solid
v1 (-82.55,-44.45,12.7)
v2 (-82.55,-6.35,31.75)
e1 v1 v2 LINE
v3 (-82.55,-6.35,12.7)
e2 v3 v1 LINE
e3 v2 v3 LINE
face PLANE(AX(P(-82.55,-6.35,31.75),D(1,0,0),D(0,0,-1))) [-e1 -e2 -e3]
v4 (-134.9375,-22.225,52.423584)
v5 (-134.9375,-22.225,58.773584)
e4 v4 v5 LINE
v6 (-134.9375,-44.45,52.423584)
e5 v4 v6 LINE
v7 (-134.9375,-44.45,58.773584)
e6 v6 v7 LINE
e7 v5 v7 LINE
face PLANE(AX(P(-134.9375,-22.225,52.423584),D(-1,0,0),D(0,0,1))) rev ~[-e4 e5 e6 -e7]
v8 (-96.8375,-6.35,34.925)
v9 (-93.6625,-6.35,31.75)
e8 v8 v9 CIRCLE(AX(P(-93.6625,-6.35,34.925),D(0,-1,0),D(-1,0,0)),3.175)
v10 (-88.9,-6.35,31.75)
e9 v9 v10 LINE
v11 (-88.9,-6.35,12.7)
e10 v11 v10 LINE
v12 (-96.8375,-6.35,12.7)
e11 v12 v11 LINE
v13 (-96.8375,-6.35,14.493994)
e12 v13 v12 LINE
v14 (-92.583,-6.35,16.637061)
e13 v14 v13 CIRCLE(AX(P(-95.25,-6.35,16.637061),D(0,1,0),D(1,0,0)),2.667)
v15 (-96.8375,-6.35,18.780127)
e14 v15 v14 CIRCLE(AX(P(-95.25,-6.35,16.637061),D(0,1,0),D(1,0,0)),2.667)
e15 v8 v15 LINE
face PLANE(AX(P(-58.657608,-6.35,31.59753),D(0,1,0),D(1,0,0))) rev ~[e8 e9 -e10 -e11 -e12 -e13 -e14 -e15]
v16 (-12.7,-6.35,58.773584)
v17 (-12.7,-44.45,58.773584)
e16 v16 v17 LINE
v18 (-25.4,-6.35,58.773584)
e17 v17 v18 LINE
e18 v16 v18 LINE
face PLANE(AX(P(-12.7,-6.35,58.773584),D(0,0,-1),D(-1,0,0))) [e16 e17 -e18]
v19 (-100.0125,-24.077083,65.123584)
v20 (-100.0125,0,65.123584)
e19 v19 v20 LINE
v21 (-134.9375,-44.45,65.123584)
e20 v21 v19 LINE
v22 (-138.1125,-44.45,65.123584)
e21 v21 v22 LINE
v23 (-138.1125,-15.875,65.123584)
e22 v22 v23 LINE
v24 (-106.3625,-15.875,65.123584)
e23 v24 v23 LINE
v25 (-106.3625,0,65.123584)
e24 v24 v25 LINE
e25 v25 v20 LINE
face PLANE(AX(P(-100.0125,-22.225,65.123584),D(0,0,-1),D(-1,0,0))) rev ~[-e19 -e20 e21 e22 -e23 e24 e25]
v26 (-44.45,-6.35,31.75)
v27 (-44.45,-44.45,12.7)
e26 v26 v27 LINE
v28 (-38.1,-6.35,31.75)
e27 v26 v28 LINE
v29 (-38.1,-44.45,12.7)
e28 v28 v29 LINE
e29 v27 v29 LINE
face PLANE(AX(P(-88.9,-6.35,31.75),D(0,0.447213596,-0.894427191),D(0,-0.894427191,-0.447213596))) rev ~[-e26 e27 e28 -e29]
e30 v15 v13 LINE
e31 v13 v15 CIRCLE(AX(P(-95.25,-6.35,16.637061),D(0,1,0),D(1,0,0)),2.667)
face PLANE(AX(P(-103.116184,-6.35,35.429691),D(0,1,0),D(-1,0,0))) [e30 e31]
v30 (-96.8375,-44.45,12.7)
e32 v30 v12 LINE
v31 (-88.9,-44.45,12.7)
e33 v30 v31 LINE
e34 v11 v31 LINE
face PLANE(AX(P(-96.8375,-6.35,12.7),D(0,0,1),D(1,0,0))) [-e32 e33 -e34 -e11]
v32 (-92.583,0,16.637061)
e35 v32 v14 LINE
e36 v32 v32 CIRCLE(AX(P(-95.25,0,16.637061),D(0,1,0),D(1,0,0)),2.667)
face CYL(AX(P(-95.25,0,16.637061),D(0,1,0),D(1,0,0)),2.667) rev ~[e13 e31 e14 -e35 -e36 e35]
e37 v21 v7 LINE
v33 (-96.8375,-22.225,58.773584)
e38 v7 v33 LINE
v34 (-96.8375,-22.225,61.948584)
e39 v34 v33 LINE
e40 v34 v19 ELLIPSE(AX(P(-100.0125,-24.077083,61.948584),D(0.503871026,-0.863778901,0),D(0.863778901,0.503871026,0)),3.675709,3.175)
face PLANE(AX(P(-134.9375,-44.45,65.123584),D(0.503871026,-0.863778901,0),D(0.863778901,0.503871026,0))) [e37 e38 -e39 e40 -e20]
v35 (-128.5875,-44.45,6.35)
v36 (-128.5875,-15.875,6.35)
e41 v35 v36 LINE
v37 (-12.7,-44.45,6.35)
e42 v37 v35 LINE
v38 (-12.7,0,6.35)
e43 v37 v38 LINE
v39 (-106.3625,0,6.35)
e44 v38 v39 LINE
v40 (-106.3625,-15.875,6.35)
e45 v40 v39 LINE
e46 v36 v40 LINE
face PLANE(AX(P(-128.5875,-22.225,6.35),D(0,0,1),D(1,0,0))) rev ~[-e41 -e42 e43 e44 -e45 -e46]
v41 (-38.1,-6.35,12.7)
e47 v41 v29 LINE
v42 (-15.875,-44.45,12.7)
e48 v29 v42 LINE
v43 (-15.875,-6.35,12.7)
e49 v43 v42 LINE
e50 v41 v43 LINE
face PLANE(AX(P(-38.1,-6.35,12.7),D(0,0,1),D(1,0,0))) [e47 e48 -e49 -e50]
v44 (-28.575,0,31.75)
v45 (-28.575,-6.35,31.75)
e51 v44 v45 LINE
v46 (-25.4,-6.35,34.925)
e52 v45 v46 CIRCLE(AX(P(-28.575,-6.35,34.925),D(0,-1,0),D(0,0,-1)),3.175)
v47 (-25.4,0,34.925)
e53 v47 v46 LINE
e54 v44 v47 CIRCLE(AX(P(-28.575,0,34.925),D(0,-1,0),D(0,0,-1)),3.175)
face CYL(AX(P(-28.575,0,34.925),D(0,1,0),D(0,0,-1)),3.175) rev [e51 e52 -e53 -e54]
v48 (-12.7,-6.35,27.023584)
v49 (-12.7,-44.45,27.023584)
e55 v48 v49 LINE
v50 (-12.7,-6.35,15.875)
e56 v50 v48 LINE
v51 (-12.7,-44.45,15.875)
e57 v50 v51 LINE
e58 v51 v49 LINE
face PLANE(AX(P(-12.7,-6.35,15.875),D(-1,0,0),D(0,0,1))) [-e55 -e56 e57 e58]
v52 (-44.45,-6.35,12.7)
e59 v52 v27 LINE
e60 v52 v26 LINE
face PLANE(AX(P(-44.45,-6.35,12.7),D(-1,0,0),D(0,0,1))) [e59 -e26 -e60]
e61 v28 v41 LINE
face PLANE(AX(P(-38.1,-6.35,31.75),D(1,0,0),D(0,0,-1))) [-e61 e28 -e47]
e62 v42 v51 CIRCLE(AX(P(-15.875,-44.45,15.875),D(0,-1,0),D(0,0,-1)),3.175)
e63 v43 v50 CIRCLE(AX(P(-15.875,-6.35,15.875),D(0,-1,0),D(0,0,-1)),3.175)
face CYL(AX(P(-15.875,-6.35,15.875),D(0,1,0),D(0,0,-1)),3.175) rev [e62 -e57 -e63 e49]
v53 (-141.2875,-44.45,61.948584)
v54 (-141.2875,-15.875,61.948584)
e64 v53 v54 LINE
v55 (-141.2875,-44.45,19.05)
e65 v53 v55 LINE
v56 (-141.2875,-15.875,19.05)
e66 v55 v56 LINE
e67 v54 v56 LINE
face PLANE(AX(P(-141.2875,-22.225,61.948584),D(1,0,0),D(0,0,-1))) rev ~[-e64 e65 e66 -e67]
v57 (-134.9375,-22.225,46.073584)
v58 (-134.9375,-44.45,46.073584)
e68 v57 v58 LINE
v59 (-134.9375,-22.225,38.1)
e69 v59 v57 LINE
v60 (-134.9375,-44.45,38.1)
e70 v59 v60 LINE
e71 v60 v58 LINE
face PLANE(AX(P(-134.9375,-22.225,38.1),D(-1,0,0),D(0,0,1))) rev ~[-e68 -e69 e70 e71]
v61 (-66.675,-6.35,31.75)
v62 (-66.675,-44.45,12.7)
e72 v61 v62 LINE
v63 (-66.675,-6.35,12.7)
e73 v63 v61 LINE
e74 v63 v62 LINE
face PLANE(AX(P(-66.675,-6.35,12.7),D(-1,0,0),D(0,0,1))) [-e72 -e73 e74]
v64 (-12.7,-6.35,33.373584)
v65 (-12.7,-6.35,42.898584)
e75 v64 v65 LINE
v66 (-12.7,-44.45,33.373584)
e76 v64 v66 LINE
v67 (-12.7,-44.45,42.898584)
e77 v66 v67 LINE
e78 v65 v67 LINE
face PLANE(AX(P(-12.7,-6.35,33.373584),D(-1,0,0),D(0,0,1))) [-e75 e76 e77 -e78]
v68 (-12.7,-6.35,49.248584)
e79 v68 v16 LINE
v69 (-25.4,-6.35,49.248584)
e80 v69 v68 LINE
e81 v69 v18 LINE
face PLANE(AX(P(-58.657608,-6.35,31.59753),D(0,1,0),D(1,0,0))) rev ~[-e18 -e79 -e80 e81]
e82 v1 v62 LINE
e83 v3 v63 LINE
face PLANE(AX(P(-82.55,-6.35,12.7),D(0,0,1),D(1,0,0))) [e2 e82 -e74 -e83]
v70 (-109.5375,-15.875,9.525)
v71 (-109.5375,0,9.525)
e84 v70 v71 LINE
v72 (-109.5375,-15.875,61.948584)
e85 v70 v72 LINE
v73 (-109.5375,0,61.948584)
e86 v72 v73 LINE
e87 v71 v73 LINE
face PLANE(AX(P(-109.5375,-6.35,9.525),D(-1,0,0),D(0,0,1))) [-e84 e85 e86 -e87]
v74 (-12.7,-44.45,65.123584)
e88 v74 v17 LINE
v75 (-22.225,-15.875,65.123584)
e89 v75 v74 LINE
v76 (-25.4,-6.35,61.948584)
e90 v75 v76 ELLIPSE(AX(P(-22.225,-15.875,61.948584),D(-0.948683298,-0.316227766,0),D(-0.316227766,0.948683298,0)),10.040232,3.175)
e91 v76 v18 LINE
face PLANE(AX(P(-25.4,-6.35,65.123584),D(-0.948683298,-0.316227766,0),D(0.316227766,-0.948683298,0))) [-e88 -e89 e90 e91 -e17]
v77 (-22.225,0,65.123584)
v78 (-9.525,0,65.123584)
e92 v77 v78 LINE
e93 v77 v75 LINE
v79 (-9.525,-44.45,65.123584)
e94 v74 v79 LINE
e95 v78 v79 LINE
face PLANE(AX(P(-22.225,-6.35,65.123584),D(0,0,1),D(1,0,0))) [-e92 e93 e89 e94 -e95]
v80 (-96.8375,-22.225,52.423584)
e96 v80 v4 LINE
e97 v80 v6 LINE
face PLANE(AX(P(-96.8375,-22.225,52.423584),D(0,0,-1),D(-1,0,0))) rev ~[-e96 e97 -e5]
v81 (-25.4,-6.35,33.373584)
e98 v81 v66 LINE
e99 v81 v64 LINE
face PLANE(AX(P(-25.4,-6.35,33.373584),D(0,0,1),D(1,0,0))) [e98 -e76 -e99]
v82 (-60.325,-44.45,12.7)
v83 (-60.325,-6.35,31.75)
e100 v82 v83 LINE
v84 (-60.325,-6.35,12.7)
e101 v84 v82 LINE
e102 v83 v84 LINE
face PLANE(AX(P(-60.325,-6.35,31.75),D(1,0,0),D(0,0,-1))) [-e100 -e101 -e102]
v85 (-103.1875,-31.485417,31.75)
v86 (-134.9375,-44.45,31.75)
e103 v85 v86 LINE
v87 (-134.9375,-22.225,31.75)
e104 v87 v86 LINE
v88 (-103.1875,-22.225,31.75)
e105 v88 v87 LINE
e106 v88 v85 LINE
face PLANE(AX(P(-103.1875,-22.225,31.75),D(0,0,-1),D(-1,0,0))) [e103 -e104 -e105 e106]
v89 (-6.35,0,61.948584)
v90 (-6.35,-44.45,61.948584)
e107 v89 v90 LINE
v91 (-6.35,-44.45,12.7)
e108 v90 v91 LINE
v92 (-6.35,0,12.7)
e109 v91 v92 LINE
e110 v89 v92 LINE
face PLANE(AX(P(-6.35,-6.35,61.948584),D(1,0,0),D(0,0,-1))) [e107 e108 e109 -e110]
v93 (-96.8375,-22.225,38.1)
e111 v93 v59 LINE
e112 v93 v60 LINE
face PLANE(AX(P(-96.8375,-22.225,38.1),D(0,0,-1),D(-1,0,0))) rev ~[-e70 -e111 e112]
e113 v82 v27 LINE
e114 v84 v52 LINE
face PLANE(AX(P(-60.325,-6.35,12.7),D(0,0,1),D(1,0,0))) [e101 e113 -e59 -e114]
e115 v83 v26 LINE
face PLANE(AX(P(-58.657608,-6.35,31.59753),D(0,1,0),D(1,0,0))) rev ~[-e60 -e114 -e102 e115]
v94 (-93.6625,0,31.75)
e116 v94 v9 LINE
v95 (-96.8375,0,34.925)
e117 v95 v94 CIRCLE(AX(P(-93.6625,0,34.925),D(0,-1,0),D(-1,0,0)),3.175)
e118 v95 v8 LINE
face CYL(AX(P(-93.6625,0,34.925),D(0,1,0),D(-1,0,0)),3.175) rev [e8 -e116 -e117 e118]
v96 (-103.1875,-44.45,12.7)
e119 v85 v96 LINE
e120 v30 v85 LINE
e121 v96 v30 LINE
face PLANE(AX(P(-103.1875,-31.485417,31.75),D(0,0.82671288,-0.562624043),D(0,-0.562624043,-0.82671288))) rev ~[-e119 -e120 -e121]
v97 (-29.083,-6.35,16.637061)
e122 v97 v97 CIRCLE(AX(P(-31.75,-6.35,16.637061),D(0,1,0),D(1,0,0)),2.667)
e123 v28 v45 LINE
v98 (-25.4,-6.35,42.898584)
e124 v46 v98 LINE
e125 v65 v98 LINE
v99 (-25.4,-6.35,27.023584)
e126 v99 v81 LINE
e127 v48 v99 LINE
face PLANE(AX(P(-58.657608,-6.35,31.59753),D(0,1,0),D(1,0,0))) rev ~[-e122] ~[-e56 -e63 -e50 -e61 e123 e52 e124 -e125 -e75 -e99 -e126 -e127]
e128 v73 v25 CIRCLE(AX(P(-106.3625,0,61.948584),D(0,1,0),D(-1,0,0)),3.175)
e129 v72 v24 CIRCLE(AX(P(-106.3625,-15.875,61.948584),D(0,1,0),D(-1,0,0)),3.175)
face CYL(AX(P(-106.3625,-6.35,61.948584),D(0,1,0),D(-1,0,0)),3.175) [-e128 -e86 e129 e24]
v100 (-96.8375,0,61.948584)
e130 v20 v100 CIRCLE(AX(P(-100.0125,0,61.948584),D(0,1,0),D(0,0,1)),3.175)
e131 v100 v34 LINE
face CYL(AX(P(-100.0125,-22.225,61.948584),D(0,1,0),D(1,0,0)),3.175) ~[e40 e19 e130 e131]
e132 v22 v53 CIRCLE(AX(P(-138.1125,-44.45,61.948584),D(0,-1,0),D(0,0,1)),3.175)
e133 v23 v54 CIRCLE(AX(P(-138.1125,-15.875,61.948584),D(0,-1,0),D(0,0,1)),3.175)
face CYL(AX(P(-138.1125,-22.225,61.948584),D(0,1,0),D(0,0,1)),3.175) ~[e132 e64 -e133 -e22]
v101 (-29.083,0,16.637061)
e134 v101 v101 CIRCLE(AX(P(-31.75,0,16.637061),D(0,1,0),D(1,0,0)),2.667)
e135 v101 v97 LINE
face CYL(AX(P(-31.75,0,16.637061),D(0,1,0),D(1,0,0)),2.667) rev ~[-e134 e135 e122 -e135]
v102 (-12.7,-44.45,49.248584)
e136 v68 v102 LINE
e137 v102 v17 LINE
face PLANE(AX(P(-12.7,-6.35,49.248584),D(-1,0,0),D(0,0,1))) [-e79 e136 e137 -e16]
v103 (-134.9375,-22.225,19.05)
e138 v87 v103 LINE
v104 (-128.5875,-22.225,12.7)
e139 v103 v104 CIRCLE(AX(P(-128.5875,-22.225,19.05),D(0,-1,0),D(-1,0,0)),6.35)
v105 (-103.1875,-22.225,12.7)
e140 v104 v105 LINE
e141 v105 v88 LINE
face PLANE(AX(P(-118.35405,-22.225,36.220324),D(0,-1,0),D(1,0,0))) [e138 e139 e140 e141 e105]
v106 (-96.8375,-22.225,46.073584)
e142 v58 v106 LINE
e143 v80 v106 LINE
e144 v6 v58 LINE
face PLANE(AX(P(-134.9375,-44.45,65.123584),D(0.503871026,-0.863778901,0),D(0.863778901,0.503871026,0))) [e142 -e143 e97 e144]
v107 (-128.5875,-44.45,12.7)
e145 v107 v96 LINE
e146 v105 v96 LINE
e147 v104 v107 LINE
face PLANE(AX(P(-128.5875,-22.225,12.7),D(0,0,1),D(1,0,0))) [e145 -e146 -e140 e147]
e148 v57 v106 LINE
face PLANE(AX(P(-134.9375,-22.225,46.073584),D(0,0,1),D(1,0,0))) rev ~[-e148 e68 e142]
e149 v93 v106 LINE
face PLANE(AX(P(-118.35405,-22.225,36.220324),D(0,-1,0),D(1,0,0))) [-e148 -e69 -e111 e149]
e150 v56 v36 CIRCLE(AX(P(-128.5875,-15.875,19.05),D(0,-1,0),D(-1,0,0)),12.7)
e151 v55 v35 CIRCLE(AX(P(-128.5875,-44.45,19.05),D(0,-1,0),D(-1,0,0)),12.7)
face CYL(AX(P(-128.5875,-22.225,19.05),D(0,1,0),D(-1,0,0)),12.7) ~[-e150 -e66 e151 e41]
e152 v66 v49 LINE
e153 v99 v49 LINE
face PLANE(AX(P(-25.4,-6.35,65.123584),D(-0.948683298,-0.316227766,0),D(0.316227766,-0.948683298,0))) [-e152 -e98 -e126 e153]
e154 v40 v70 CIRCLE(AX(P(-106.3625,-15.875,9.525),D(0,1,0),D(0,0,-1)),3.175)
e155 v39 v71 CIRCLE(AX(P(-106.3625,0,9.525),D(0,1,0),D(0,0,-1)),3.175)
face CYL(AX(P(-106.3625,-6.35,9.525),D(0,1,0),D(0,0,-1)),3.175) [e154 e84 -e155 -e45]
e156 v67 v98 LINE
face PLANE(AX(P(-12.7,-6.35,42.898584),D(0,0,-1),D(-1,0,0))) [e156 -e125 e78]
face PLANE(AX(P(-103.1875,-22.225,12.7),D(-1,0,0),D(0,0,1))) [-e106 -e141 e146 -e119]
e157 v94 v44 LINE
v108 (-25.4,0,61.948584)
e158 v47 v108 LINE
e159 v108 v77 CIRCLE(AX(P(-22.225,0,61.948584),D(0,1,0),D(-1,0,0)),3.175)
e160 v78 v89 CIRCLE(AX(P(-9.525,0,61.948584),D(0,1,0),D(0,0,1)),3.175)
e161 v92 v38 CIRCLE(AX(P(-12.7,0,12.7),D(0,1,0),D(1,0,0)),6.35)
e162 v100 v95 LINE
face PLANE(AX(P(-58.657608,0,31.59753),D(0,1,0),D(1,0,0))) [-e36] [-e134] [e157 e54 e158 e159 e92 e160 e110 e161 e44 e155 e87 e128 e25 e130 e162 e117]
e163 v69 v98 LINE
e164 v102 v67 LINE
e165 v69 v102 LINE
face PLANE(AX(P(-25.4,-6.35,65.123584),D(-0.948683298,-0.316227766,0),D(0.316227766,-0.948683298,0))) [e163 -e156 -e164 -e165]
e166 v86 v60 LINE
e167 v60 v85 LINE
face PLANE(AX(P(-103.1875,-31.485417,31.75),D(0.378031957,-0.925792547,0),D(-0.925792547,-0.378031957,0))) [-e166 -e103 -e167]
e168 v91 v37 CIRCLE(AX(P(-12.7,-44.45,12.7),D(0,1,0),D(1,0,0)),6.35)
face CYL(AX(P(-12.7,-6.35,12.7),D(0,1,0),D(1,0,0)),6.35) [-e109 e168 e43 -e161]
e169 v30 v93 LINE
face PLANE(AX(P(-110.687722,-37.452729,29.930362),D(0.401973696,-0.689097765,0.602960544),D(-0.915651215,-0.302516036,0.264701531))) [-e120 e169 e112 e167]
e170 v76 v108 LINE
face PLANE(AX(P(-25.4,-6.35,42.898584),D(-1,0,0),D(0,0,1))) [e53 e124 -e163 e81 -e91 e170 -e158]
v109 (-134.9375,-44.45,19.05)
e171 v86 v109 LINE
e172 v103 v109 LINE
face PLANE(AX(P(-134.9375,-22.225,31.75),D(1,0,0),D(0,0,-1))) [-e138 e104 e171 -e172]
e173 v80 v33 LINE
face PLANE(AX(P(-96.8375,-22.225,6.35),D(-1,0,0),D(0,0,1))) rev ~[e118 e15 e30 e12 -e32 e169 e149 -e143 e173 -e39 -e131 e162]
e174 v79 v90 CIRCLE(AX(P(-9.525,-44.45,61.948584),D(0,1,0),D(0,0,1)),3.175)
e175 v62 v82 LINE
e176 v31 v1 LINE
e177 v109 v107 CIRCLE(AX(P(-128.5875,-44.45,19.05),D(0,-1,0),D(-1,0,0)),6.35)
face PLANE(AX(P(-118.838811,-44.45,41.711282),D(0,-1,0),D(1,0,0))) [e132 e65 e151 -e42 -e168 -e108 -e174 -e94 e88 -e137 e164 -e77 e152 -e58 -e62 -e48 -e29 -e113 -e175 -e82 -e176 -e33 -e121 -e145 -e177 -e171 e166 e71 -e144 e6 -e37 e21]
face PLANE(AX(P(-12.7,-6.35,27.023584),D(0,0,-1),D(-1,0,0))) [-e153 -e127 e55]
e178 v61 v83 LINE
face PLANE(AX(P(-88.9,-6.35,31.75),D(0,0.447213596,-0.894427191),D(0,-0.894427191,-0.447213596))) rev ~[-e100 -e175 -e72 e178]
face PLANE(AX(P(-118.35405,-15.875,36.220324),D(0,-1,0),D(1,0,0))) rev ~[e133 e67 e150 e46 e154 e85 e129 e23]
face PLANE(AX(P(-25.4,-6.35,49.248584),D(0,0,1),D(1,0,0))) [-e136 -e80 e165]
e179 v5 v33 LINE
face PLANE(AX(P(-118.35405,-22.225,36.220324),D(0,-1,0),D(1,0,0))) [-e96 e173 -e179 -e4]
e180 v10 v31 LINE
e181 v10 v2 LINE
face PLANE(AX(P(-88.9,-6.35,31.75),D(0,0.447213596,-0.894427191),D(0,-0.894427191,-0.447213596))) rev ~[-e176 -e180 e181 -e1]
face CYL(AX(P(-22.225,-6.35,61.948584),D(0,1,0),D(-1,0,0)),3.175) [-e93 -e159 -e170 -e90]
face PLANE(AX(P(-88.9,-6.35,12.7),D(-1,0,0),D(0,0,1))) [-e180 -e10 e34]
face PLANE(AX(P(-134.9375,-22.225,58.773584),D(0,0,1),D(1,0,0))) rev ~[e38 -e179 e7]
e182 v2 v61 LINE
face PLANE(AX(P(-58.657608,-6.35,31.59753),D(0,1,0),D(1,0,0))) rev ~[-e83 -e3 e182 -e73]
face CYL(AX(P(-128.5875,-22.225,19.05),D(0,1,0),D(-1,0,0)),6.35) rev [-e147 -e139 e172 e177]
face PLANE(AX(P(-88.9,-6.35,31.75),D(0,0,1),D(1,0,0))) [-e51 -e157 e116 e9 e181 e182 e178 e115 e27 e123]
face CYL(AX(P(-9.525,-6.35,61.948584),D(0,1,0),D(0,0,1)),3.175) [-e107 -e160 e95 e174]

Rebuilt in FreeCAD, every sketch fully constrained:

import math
import FreeCAD as App
import Part
import Sketcher

V = App.Vector
Q = App.Units.Quantity

doc = App.newDocument("Part")
params = doc.addObject("Spreadsheet::Sheet", "Params")
for row, (alias, value) in enumerate([
    ("sketch1_diameter", "0.21 in"),
    ("sketch1_radius", "0.25 in"),
    ("sketch1_width", "0.5 in"),
    ("sketch1_radius2", "0.125 in"),
    ("sketch1_width2", "0.25 in"),
    ("pad1_length", "0.25 in"),
    ("sketch2_radius", "0.25 in"),
    ("sketch2_width", "0.5 in"),
    ("sketch2_width2", "0.3125 in"),
    ("sketch2_height", "0.125 in"),
    ("pad2_length", "1.5 in"),
    ("sketch3_width", "1.5 in"),
    ("sketch3_height", "0.75 in"),
    ("pocket1_length", "2 in"),
    ("sketch4_width", "0.5 in"),
    ("sketch4_height", "1.5 in"),
    ("pocket2_length", "1.5 in"),
    ("sketch5_radius", "0.125 in"),
    ("sketch5_width", "0.25 in"),
    ("pad3_length", "0.375 in"),
    ("sketch6_radius", "0.5 in"),
    ("sketch6_width", "1.5 in"),
    ("sketch6_radius2", "0.125 in"),
    ("pad4_length", "0.25 in"),
    ("sketch7_radius", "0.5 in"),
    ("sketch7_width", "1 in"),
    ("sketch7_radius2", "0.25 in"),
    ("sketch7_height", "0.5 in"),
    ("sketch7_height2", "0.25 in"),
    ("pad5_length", "0.875 in"),
    ("sketch8_width", "1.5 in"),
    ("sketch8_height", "0.875 in"),
    ("pocket3_length", "0.75 in"),
    ("pocket4_length", "0.75 in"),
    ("pocket5_length", "0.25 in"),
    ("sketch11_width", "0.375 in"),
    ("pocket6_length", "0.25 in"),
], start=1):
    params.set(f"A{row}", alias)
    params.set(f"B{row}", "=" + value)
    params.setAlias(f"B{row}", alias)

body = doc.addObject("PartDesign::Body", "Body")

sketch1 = body.newObject("Sketcher::SketchObject", "Sketch")
sketch1.AttachmentSupport = (doc.getObject("XZ_Plane"), [""])
sketch1.MapMode = "FlatFace"
sketch1.addGeometry(Part.LineSegment(V(-109.5, 9.5, 0), V(-109.5, 61.9, 0)), False)
sketch1.addGeometry(Part.ArcOfCircle(Part.Circle(V(-106.4, 61.9, 0), V(0, 0, 1), 3.2), math.radians(90), math.radians(180)), False)
sketch1.addGeometry(Part.LineSegment(V(-106.4, 65.1, 0), V(-100, 65.1, 0)), False)
sketch1.addGeometry(Part.ArcOfCircle(Part.Circle(V(-100, 61.9, 0), V(0, 0, 1), 3.2), math.radians(0), math.radians(90)), False)
sketch1.addGeometry(Part.LineSegment(V(-96.8, 61.9, 0), V(-96.8, 34.9, 0)), False)
sketch1.addGeometry(Part.ArcOfCircle(Part.Circle(V(-93.7, 34.9, 0), V(0, 0, 1), 3.2), math.radians(-180), math.radians(-90)), False)
sketch1.addGeometry(Part.LineSegment(V(-93.7, 31.8, 0), V(-28.6, 31.8, 0)), False)
sketch1.addGeometry(Part.ArcOfCircle(Part.Circle(V(-28.6, 34.9, 0), V(0, 0, 1), 3.2), math.radians(-90), math.radians(0)), False)
sketch1.addGeometry(Part.LineSegment(V(-25.4, 34.9, 0), V(-25.4, 61.9, 0)), False)
sketch1.addGeometry(Part.ArcOfCircle(Part.Circle(V(-22.2, 61.9, 0), V(0, 0, 1), 3.2), math.radians(90), math.radians(180)), False)
sketch1.addGeometry(Part.LineSegment(V(-22.2, 65.1, 0), V(-9.5, 65.1, 0)), False)
sketch1.addGeometry(Part.ArcOfCircle(Part.Circle(V(-9.5, 61.9, 0), V(0, 0, 1), 3.2), math.radians(0), math.radians(90)), False)
sketch1.addGeometry(Part.LineSegment(V(-6.3, 61.9, 0), V(-6.3, 12.7, 0)), False)
sketch1.addGeometry(Part.ArcOfCircle(Part.Circle(V(-12.7, 12.7, 0), V(0, 0, 1), 6.3), math.radians(-90), math.radians(0)), False)
sketch1.addGeometry(Part.LineSegment(V(-12.7, 6.3, 0), V(-106.4, 6.3, 0)), False)
sketch1.addGeometry(Part.ArcOfCircle(Part.Circle(V(-106.4, 9.5, 0), V(0, 0, 1), 3.2), math.radians(-180), math.radians(-90)), False)
sketch1.addGeometry(Part.Circle(V(-95.2, 16.6, 0), V(0, 0, 1), 2.7), False)
sketch1.addGeometry(Part.Circle(V(-31.8, 16.6, 0), V(0, 0, 1), 2.7), False)
sketch1.addConstraint(Sketcher.Constraint("Tangent", 0, 2, 1, 2))
sketch1.addConstraint(Sketcher.Constraint("Tangent", 1, 1, 2, 1))
sketch1.addConstraint(Sketcher.Constraint("Tangent", 2, 2, 3, 2))
sketch1.addConstraint(Sketcher.Constraint("Tangent", 3, 1, 4, 1))
sketch1.addConstraint(Sketcher.Constraint("Tangent", 4, 2, 5, 1))
sketch1.addConstraint(Sketcher.Constraint("Tangent", 5, 2, 6, 1))
sketch1.addConstraint(Sketcher.Constraint("Tangent", 6, 2, 7, 1))
sketch1.addConstraint(Sketcher.Constraint("Tangent", 7, 2, 8, 1))
sketch1.addConstraint(Sketcher.Constraint("Tangent", 8, 2, 9, 2))
sketch1.addConstraint(Sketcher.Constraint("Tangent", 9, 1, 10, 1))
sketch1.addConstraint(Sketcher.Constraint("Tangent", 10, 2, 11, 2))
sketch1.addConstraint(Sketcher.Constraint("Tangent", 11, 1, 12, 1))
sketch1.addConstraint(Sketcher.Constraint("Tangent", 12, 2, 13, 2))
sketch1.addConstraint(Sketcher.Constraint("Tangent", 13, 1, 14, 1))
sketch1.addConstraint(Sketcher.Constraint("Tangent", 14, 2, 15, 2))
sketch1.addConstraint(Sketcher.Constraint("Tangent", 15, 1, 0, 1))
sketch1.addConstraint(Sketcher.Constraint("Vertical", 0))
sketch1.addConstraint(Sketcher.Constraint("Horizontal", 2))
sketch1.addConstraint(Sketcher.Constraint("Vertical", 4))
sketch1.addConstraint(Sketcher.Constraint("Horizontal", 6))
sketch1.addConstraint(Sketcher.Constraint("Vertical", 8))
sketch1.addConstraint(Sketcher.Constraint("Horizontal", 10))
sketch1.addConstraint(Sketcher.Constraint("Vertical", 12))
sketch1.addConstraint(Sketcher.Constraint("Horizontal", 14))
sketch1.addConstraint(Sketcher.Constraint("Equal", 1, 3))
sketch1.addConstraint(Sketcher.Constraint("Equal", 3, 5))
sketch1.addConstraint(Sketcher.Constraint("Equal", 5, 7))
sketch1.addConstraint(Sketcher.Constraint("Equal", 7, 9))
sketch1.addConstraint(Sketcher.Constraint("Equal", 9, 11))
sketch1.addConstraint(Sketcher.Constraint("Equal", 11, 15))
sketch1.addConstraint(Sketcher.Constraint("Equal", 16, 17))
sketch1.addConstraint(Sketcher.Constraint("Horizontal", 3, 3, 9, 3))
sketch1.addConstraint(Sketcher.Constraint("Horizontal", 16, 3, 17, 3))
sketch1.addConstraint(Sketcher.Constraint("Diameter", 16, Q("0.21 in")))
sketch1.addConstraint(Sketcher.Constraint("Radius", 13, Q("0.25 in")))
sketch1.addConstraint(Sketcher.Constraint("DistanceX", 10, 1, 10, 2, Q("0.5 in")))
sketch1.addConstraint(Sketcher.Constraint("DistanceX", 7, 2, -1, 1, Q("1 in")))
sketch1.addConstraint(Sketcher.Constraint("Radius", 1, Q("0.125 in")))
sketch1.addConstraint(Sketcher.Constraint("DistanceY", 15, 3, 5, 3, Q("1 in")))
sketch1.addConstraint(Sketcher.Constraint("DistanceX", 17, 3, 12, 2, Q("1 in")))
sketch1.addConstraint(Sketcher.Constraint("DistanceX", 2, 1, 2, 2, Q("0.25 in")))
sketch1.addConstraint(Sketcher.Constraint("DistanceY", -1, 1, 13, 3, Q("0.5 in")))
sketch1.addConstraint(Sketcher.Constraint("DistanceX", 16, 3, 17, 3, Q("2.5 in")))
sketch1.addConstraint(Sketcher.Constraint("DistanceX", 6, 1, 6, 2, Q("2.5625 in")))
sketch1.addConstraint(Sketcher.Constraint("DistanceY", 0, 1, 0, 2, Q("52.423584 mm")))
sketch1.addConstraint(Sketcher.Constraint("DistanceY", -1, 1, 16, 3, Q("16.637061 mm")))
sketch1.setExpression("Constraints[33]", "Params.sketch1_diameter")
sketch1.setExpression("Constraints[34]", "Params.sketch1_radius")
sketch1.setExpression("Constraints[35]", "Params.sketch1_width")
sketch1.setExpression("Constraints[37]", "Params.sketch1_radius2")
sketch1.setExpression("Constraints[40]", "Params.sketch1_width2")
pad1 = body.newObject("PartDesign::Pad", "Pad")
pad1.Profile = sketch1
pad1.setExpression("Length", "Params.pad1_length")

sketch2 = body.newObject("Sketcher::SketchObject", "Sketch001")
sketch2.AttachmentSupport = (doc.getObject("XZ_Plane"), [""])
sketch2.MapMode = "FlatFace"
sketch2.AttachmentOffset = App.Placement(V(0, 0, 0.25 * 25.4), App.Rotation())
sketch2.addGeometry(Part.LineSegment(V(-6.3, 12.7, 0), V(-6.3, 61.9, 0)), False)
sketch2.addGeometry(Part.ArcOfCircle(Part.Circle(V(-9.5, 61.9, 0), V(0, 0, 1), 3.2), math.radians(0), math.radians(90)), False)
sketch2.addGeometry(Part.LineSegment(V(-9.5, 65.1, 0), V(-22.2, 65.1, 0)), False)
sketch2.addGeometry(Part.ArcOfCircle(Part.Circle(V(-22.2, 61.9, 0), V(0, 0, 1), 3.2), math.radians(90), math.radians(180)), False)
sketch2.addGeometry(Part.LineSegment(V(-25.4, 61.9, 0), V(-25.4, 58.8, 0)), False)
sketch2.addGeometry(Part.LineSegment(V(-25.4, 58.8, 0), V(-12.7, 58.8, 0)), False)
sketch2.addGeometry(Part.LineSegment(V(-12.7, 58.8, 0), V(-12.7, 49.2, 0)), False)
sketch2.addGeometry(Part.LineSegment(V(-12.7, 49.2, 0), V(-25.4, 49.2, 0)), False)
sketch2.addGeometry(Part.LineSegment(V(-25.4, 49.2, 0), V(-25.4, 42.9, 0)), False)
sketch2.addGeometry(Part.LineSegment(V(-25.4, 42.9, 0), V(-12.7, 42.9, 0)), False)
sketch2.addGeometry(Part.LineSegment(V(-12.7, 42.9, 0), V(-12.7, 33.4, 0)), False)
sketch2.addGeometry(Part.LineSegment(V(-12.7, 33.4, 0), V(-25.4, 33.4, 0)), False)
sketch2.addGeometry(Part.LineSegment(V(-25.4, 33.4, 0), V(-25.4, 27, 0)), False)
sketch2.addGeometry(Part.LineSegment(V(-25.4, 27, 0), V(-12.7, 27, 0)), False)
sketch2.addGeometry(Part.LineSegment(V(-12.7, 27, 0), V(-12.7, 15.9, 0)), False)
sketch2.addGeometry(Part.ArcOfCircle(Part.Circle(V(-15.9, 15.9, 0), V(0, 0, 1), 3.2), math.radians(-90), math.radians(0)), False)
sketch2.addGeometry(Part.LineSegment(V(-15.9, 12.7, 0), V(-38.1, 12.7, 0)), False)
sketch2.addGeometry(Part.LineSegment(V(-38.1, 12.7, 0), V(-38.1, 31.8, 0)), False)
sketch2.addGeometry(Part.LineSegment(V(-38.1, 31.8, 0), V(-44.5, 31.8, 0)), False)
sketch2.addGeometry(Part.LineSegment(V(-44.5, 31.8, 0), V(-44.5, 12.7, 0)), False)
sketch2.addGeometry(Part.LineSegment(V(-44.5, 12.7, 0), V(-60.3, 12.7, 0)), False)
sketch2.addGeometry(Part.LineSegment(V(-60.3, 12.7, 0), V(-60.3, 31.8, 0)), False)
sketch2.addGeometry(Part.LineSegment(V(-60.3, 31.8, 0), V(-66.7, 31.8, 0)), False)
sketch2.addGeometry(Part.LineSegment(V(-66.7, 31.8, 0), V(-66.7, 12.7, 0)), False)
sketch2.addGeometry(Part.LineSegment(V(-66.7, 12.7, 0), V(-82.5, 12.7, 0)), False)
sketch2.addGeometry(Part.LineSegment(V(-82.5, 12.7, 0), V(-82.5, 31.8, 0)), False)
sketch2.addGeometry(Part.LineSegment(V(-82.5, 31.8, 0), V(-88.9, 31.8, 0)), False)
sketch2.addGeometry(Part.LineSegment(V(-88.9, 31.8, 0), V(-88.9, 12.7, 0)), False)
sketch2.addGeometry(Part.LineSegment(V(-88.9, 12.7, 0), V(-96.8, 12.7, 0)), False)
sketch2.addGeometry(Part.LineSegment(V(-96.8, 12.7, 0), V(-96.8, 6.3, 0)), False)
sketch2.addGeometry(Part.LineSegment(V(-96.8, 6.3, 0), V(-12.7, 6.3, 0)), False)
sketch2.addGeometry(Part.ArcOfCircle(Part.Circle(V(-12.7, 12.7, 0), V(0, 0, 1), 6.3), math.radians(-90), math.radians(0)), False)
sketch2.addConstraint(Sketcher.Constraint("Tangent", 0, 2, 1, 1))
sketch2.addConstraint(Sketcher.Constraint("Tangent", 1, 2, 2, 1))
sketch2.addConstraint(Sketcher.Constraint("Tangent", 2, 2, 3, 1))
sketch2.addConstraint(Sketcher.Constraint("Tangent", 3, 2, 4, 1))
sketch2.addConstraint(Sketcher.Constraint("Coincident", 4, 2, 5, 1))
sketch2.addConstraint(Sketcher.Constraint("Coincident", 5, 2, 6, 1))
sketch2.addConstraint(Sketcher.Constraint("Coincident", 6, 2, 7, 1))
sketch2.addConstraint(Sketcher.Constraint("Coincident", 7, 2, 8, 1))
sketch2.addConstraint(Sketcher.Constraint("Coincident", 8, 2, 9, 1))
sketch2.addConstraint(Sketcher.Constraint("Coincident", 9, 2, 10, 1))
sketch2.addConstraint(Sketcher.Constraint("Coincident", 10, 2, 11, 1))
sketch2.addConstraint(Sketcher.Constraint("Coincident", 11, 2, 12, 1))
sketch2.addConstraint(Sketcher.Constraint("Coincident", 12, 2, 13, 1))
sketch2.addConstraint(Sketcher.Constraint("Coincident", 13, 2, 14, 1))
sketch2.addConstraint(Sketcher.Constraint("Tangent", 14, 2, 15, 2))
sketch2.addConstraint(Sketcher.Constraint("Tangent", 15, 1, 16, 1))
sketch2.addConstraint(Sketcher.Constraint("Coincident", 16, 2, 17, 1))
sketch2.addConstraint(Sketcher.Constraint("Coincident", 17, 2, 18, 1))
sketch2.addConstraint(Sketcher.Constraint("Coincident", 18, 2, 19, 1))
sketch2.addConstraint(Sketcher.Constraint("Coincident", 19, 2, 20, 1))
sketch2.addConstraint(Sketcher.Constraint("Coincident", 20, 2, 21, 1))
sketch2.addConstraint(Sketcher.Constraint("Coincident", 21, 2, 22, 1))
sketch2.addConstraint(Sketcher.Constraint("Coincident", 22, 2, 23, 1))
sketch2.addConstraint(Sketcher.Constraint("Coincident", 23, 2, 24, 1))
sketch2.addConstraint(Sketcher.Constraint("Coincident", 24, 2, 25, 1))
sketch2.addConstraint(Sketcher.Constraint("Coincident", 25, 2, 26, 1))
sketch2.addConstraint(Sketcher.Constraint("Coincident", 26, 2, 27, 1))
sketch2.addConstraint(Sketcher.Constraint("Coincident", 27, 2, 28, 1))
sketch2.addConstraint(Sketcher.Constraint("Coincident", 28, 2, 29, 1))
sketch2.addConstraint(Sketcher.Constraint("Coincident", 29, 2, 30, 1))
sketch2.addConstraint(Sketcher.Constraint("Tangent", 30, 2, 31, 1))
sketch2.addConstraint(Sketcher.Constraint("Tangent", 31, 2, 0, 1))
sketch2.addConstraint(Sketcher.Constraint("Vertical", 0))
sketch2.addConstraint(Sketcher.Constraint("Horizontal", 2))
sketch2.addConstraint(Sketcher.Constraint("Vertical", 4))
sketch2.addConstraint(Sketcher.Constraint("Horizontal", 5))
sketch2.addConstraint(Sketcher.Constraint("Vertical", 6))
sketch2.addConstraint(Sketcher.Constraint("Horizontal", 7))
sketch2.addConstraint(Sketcher.Constraint("Vertical", 8))
sketch2.addConstraint(Sketcher.Constraint("Horizontal", 9))
sketch2.addConstraint(Sketcher.Constraint("Vertical", 10))
sketch2.addConstraint(Sketcher.Constraint("Horizontal", 11))
sketch2.addConstraint(Sketcher.Constraint("Vertical", 12))
sketch2.addConstraint(Sketcher.Constraint("Horizontal", 13))
sketch2.addConstraint(Sketcher.Constraint("Vertical", 14))
sketch2.addConstraint(Sketcher.Constraint("Horizontal", 16))
sketch2.addConstraint(Sketcher.Constraint("Vertical", 17))
sketch2.addConstraint(Sketcher.Constraint("Horizontal", 18))
sketch2.addConstraint(Sketcher.Constraint("Vertical", 19))
sketch2.addConstraint(Sketcher.Constraint("Horizontal", 20))
sketch2.addConstraint(Sketcher.Constraint("Vertical", 21))
sketch2.addConstraint(Sketcher.Constraint("Horizontal", 22))
sketch2.addConstraint(Sketcher.Constraint("Vertical", 23))
sketch2.addConstraint(Sketcher.Constraint("Horizontal", 24))
sketch2.addConstraint(Sketcher.Constraint("Vertical", 25))
sketch2.addConstraint(Sketcher.Constraint("Horizontal", 26))
sketch2.addConstraint(Sketcher.Constraint("Vertical", 27))
sketch2.addConstraint(Sketcher.Constraint("Horizontal", 28))
sketch2.addConstraint(Sketcher.Constraint("Vertical", 29))
sketch2.addConstraint(Sketcher.Constraint("Horizontal", 30))
sketch2.addConstraint(Sketcher.Constraint("Equal", 1, 3))
sketch2.addConstraint(Sketcher.Constraint("Equal", 3, 15))
sketch2.addConstraint(Sketcher.Constraint("Horizontal", 31, 3, 15, 1))
sketch2.addConstraint(Sketcher.Constraint("Horizontal", 16, 2, 19, 2))
sketch2.addConstraint(Sketcher.Constraint("Horizontal", 18, 2, 21, 2))
sketch2.addConstraint(Sketcher.Constraint("Horizontal", 20, 2, 23, 2))
sketch2.addConstraint(Sketcher.Constraint("Horizontal", 22, 2, 25, 2))
sketch2.addConstraint(Sketcher.Constraint("Horizontal", 24, 2, 27, 2))
sketch2.addConstraint(Sketcher.Constraint("Vertical", 31, 3, 5, 2))
sketch2.addConstraint(Sketcher.Constraint("Vertical", 4, 2, 7, 2))
sketch2.addConstraint(Sketcher.Constraint("Vertical", 6, 2, 9, 2))
sketch2.addConstraint(Sketcher.Constraint("Vertical", 8, 2, 11, 2))
sketch2.addConstraint(Sketcher.Constraint("Vertical", 10, 2, 13, 2))
sketch2.addConstraint(Sketcher.Constraint("Equal", 2, 5))
sketch2.addConstraint(Sketcher.Constraint("Equal", 18, 22))
sketch2.addConstraint(Sketcher.Constraint("Equal", 20, 24))
sketch2.addConstraint(Sketcher.Constraint("Equal", 22, 26))
sketch2.addConstraint(Sketcher.Constraint("Equal", 26, 8))
sketch2.addConstraint(Sketcher.Constraint("Equal", 6, 10))
sketch2.addConstraint(Sketcher.Constraint("Equal", 8, 12))
sketch2.addConstraint(Sketcher.Constraint("Equal", 12, 29))
sketch2.addConstraint(Sketcher.Constraint("Radius", 31, Q("0.25 in")))
sketch2.addConstraint(Sketcher.Constraint("DistanceX", 2, 2, 2, 1, Q("0.5 in")))
sketch2.addConstraint(Sketcher.Constraint("DistanceX", 3, 2, -1, 1, Q("1 in")))
sketch2.addConstraint(Sketcher.Constraint("DistanceX", 16, 2, 31, 3, Q("1 in")))
sketch2.addConstraint(Sketcher.Constraint("DistanceY", 29, 2, 26, 2, Q("1 in")))
sketch2.addConstraint(Sketcher.Constraint("DistanceY", -1, 1, 31, 3, Q("0.5 in")))
sketch2.addConstraint(Sketcher.Constraint("DistanceX", 26, 2, -1, 1, Q("3.5 in")))
sketch2.addConstraint(Sketcher.Constraint("DistanceY", 6, 2, 1, 3, Q("0.5 in")))
sketch2.addConstraint(Sketcher.Constraint("DistanceX", 28, 2, 28, 1, Q("0.3125 in")))
sketch2.addConstraint(Sketcher.Constraint("DistanceY", 4, 2, 4, 1, Q("0.125 in")))
sketch2.addConstraint(Sketcher.Constraint("DistanceY", 0, 1, 0, 2, Q("49.248584 mm")))
sketch2.setExpression("Constraints[81]", "Params.sketch2_radius")
sketch2.setExpression("Constraints[82]", "Params.sketch2_width")
sketch2.setExpression("Constraints[89]", "Params.sketch2_width2")
sketch2.setExpression("Constraints[90]", "Params.sketch2_height")
pad2 = body.newObject("PartDesign::Pad", "Pad001")
pad2.Profile = sketch2
pad2.setExpression("Length", "Params.pad2_length")

sketch3 = body.newObject("Sketcher::SketchObject", "Sketch002")
sketch3.AttachmentSupport = (doc.getObject("YZ_Plane"), [""])
sketch3.MapMode = "FlatFace"
sketch3.AttachmentOffset = App.Placement(V(0, 0, -3.5 * 25.4), App.Rotation())
sketch3.addGeometry(Part.LineSegment(V(-6, 32, 0), V(-44, 13, 0)), False)
sketch3.addGeometry(Part.LineSegment(V(-44, 13, 0), V(-44, 32, 0)), False)
sketch3.addGeometry(Part.LineSegment(V(-44, 32, 0), V(-6, 32, 0)), False)
sketch3.addConstraint(Sketcher.Constraint("Coincident", 0, 2, 1, 1))
sketch3.addConstraint(Sketcher.Constraint("Coincident", 1, 2, 2, 1))
sketch3.addConstraint(Sketcher.Constraint("Coincident", 2, 2, 0, 1))
sketch3.addConstraint(Sketcher.Constraint("Vertical", 1))
sketch3.addConstraint(Sketcher.Constraint("Horizontal", 2))
sketch3.addConstraint(Sketcher.Constraint("DistanceX", 2, 1, 2, 2, Q("1.5 in")))
sketch3.addConstraint(Sketcher.Constraint("DistanceY", 1, 1, 1, 2, Q("0.75 in")))
sketch3.addConstraint(Sketcher.Constraint("DistanceY", -1, 1, 0, 2, Q("0.5 in")))
sketch3.addConstraint(Sketcher.Constraint("DistanceX", 0, 2, -1, 1, Q("1.75 in")))
sketch3.setExpression("Constraints[5]", "Params.sketch3_width")
sketch3.setExpression("Constraints[6]", "Params.sketch3_height")
pocket1 = body.newObject("PartDesign::Pocket", "Pocket")
pocket1.Profile = sketch3
pocket1.setExpression("Length", "Params.pocket1_length")
pocket1.Reversed = True

sketch4 = body.newObject("Sketcher::SketchObject", "Sketch003")
sketch4.AttachmentSupport = (doc.getObject("XY_Plane"), [""])
sketch4.MapMode = "FlatFace"
sketch4.AttachmentOffset = App.Placement(V(0, 0, 65.123584), App.Rotation())
sketch4.addGeometry(Part.LineSegment(V(-13, -44, 0), V(-25, -6, 0)), False)
sketch4.addGeometry(Part.LineSegment(V(-25, -6, 0), V(-25, -44, 0)), False)
sketch4.addGeometry(Part.LineSegment(V(-25, -44, 0), V(-13, -44, 0)), False)
sketch4.addConstraint(Sketcher.Constraint("Coincident", 0, 2, 1, 1))
sketch4.addConstraint(Sketcher.Constraint("Coincident", 1, 2, 2, 1))
sketch4.addConstraint(Sketcher.Constraint("Coincident", 2, 2, 0, 1))
sketch4.addConstraint(Sketcher.Constraint("Vertical", 1))
sketch4.addConstraint(Sketcher.Constraint("Horizontal", 2))
sketch4.addConstraint(Sketcher.Constraint("DistanceX", 2, 1, 2, 2, Q("0.5 in")))
sketch4.addConstraint(Sketcher.Constraint("DistanceY", 1, 2, 1, 1, Q("1.5 in")))
sketch4.addConstraint(Sketcher.Constraint("DistanceX", 0, 2, -1, 1, Q("1 in")))
sketch4.addConstraint(Sketcher.Constraint("DistanceY", 0, 2, -1, 1, Q("0.25 in")))
sketch4.setExpression("Constraints[5]", "Params.sketch4_width")
sketch4.setExpression("Constraints[6]", "Params.sketch4_height")
pocket2 = body.newObject("PartDesign::Pocket", "Pocket001")
pocket2.Profile = sketch4
pocket2.setExpression("Length", "Params.pocket2_length")

sketch5 = body.newObject("Sketcher::SketchObject", "Sketch004")
sketch5.AttachmentSupport = (doc.getObject("XZ_Plane"), [""])
sketch5.MapMode = "FlatFace"
sketch5.AttachmentOffset = App.Placement(V(0, 0, 0.25 * 25.4), App.Rotation())
sketch5.addGeometry(Part.LineSegment(V(-106.4, 6.3, 0), V(-96.8, 6.3, 0)), False)
sketch5.addGeometry(Part.LineSegment(V(-96.8, 6.3, 0), V(-96.8, 61.9, 0)), False)
sketch5.addGeometry(Part.ArcOfCircle(Part.Circle(V(-100, 61.9, 0), V(0, 0, 1), 3.2), math.radians(0), math.radians(90)), False)
sketch5.addGeometry(Part.LineSegment(V(-100, 65.1, 0), V(-106.4, 65.1, 0)), False)
sketch5.addGeometry(Part.ArcOfCircle(Part.Circle(V(-106.4, 61.9, 0), V(0, 0, 1), 3.2), math.radians(90), math.radians(180)), False)
sketch5.addGeometry(Part.LineSegment(V(-109.5, 61.9, 0), V(-109.5, 9.5, 0)), False)
sketch5.addGeometry(Part.ArcOfCircle(Part.Circle(V(-106.4, 9.5, 0), V(0, 0, 1), 3.2), math.radians(-180), math.radians(-90)), False)
sketch5.addConstraint(Sketcher.Constraint("Coincident", 0, 2, 1, 1))
sketch5.addConstraint(Sketcher.Constraint("Tangent", 1, 2, 2, 1))
sketch5.addConstraint(Sketcher.Constraint("Tangent", 2, 2, 3, 1))
sketch5.addConstraint(Sketcher.Constraint("Tangent", 3, 2, 4, 1))
sketch5.addConstraint(Sketcher.Constraint("Tangent", 4, 2, 5, 1))
sketch5.addConstraint(Sketcher.Constraint("Tangent", 5, 2, 6, 1))
sketch5.addConstraint(Sketcher.Constraint("Tangent", 6, 2, 0, 1))
sketch5.addConstraint(Sketcher.Constraint("Horizontal", 0))
sketch5.addConstraint(Sketcher.Constraint("Vertical", 1))
sketch5.addConstraint(Sketcher.Constraint("Horizontal", 3))
sketch5.addConstraint(Sketcher.Constraint("Vertical", 5))
sketch5.addConstraint(Sketcher.Constraint("Equal", 2, 4))
sketch5.addConstraint(Sketcher.Constraint("Equal", 4, 6))
sketch5.addConstraint(Sketcher.Constraint("Radius", 2, Q("0.125 in")))
sketch5.addConstraint(Sketcher.Constraint("DistanceX", 3, 2, 3, 1, Q("0.25 in")))
sketch5.addConstraint(Sketcher.Constraint("DistanceY", -1, 1, 0, 2, Q("0.25 in")))
sketch5.addConstraint(Sketcher.Constraint("DistanceX", 2, 3, -1, 1, Q("3.9375 in")))
sketch5.addConstraint(Sketcher.Constraint("DistanceY", 1, 1, 1, 2, Q("55.598584 mm")))
sketch5.setExpression("Constraints[13]", "Params.sketch5_radius")
sketch5.setExpression("Constraints[14]", "Params.sketch5_width")
pad3 = body.newObject("PartDesign::Pad", "Pad002")
pad3.Profile = sketch5
pad3.setExpression("Length", "Params.pad3_length")

sketch6 = body.newObject("Sketcher::SketchObject", "Sketch005")
sketch6.AttachmentSupport = (doc.getObject("XZ_Plane"), [""])
sketch6.MapMode = "FlatFace"
sketch6.AttachmentOffset = App.Placement(V(0, 0, 0.625 * 25.4), App.Rotation())
sketch6.addGeometry(Part.LineSegment(V(-100, 65.1, 0), V(-138.1, 65.1, 0)), False)
sketch6.addGeometry(Part.ArcOfCircle(Part.Circle(V(-138.1, 61.9, 0), V(0, 0, 1), 3.2), math.radians(90), math.radians(180)), False)
sketch6.addGeometry(Part.LineSegment(V(-141.3, 61.9, 0), V(-141.3, 19.1, 0)), False)
sketch6.addGeometry(Part.ArcOfCircle(Part.Circle(V(-128.6, 19.1, 0), V(0, 0, 1), 12.7), math.radians(180), math.radians(270)), False)
sketch6.addGeometry(Part.LineSegment(V(-128.6, 6.3, 0), V(-96.8, 6.3, 0)), False)
sketch6.addGeometry(Part.LineSegment(V(-96.8, 6.3, 0), V(-96.8, 61.9, 0)), False)
sketch6.addGeometry(Part.ArcOfCircle(Part.Circle(V(-100, 61.9, 0), V(0, 0, 1), 3.2), math.radians(0), math.radians(90)), False)
sketch6.addConstraint(Sketcher.Constraint("Tangent", 0, 2, 1, 1))
sketch6.addConstraint(Sketcher.Constraint("Tangent", 1, 2, 2, 1))
sketch6.addConstraint(Sketcher.Constraint("Tangent", 2, 2, 3, 1))
sketch6.addConstraint(Sketcher.Constraint("Tangent", 3, 2, 4, 1))
sketch6.addConstraint(Sketcher.Constraint("Coincident", 4, 2, 5, 1))
sketch6.addConstraint(Sketcher.Constraint("Tangent", 5, 2, 6, 1))
sketch6.addConstraint(Sketcher.Constraint("Tangent", 6, 2, 0, 1))
sketch6.addConstraint(Sketcher.Constraint("Horizontal", 0))
sketch6.addConstraint(Sketcher.Constraint("Vertical", 2))
sketch6.addConstraint(Sketcher.Constraint("Horizontal", 4))
sketch6.addConstraint(Sketcher.Constraint("Vertical", 5))
sketch6.addConstraint(Sketcher.Constraint("Equal", 1, 6))
sketch6.addConstraint(Sketcher.Constraint("Radius", 3, Q("0.5 in")))
sketch6.addConstraint(Sketcher.Constraint("DistanceX", 0, 2, 0, 1, Q("1.5 in")))
sketch6.addConstraint(Sketcher.Constraint("Radius", 1, Q("0.125 in")))
sketch6.addConstraint(Sketcher.Constraint("DistanceY", -1, 1, 3, 3, Q("0.75 in")))
sketch6.addConstraint(Sketcher.Constraint("DistanceX", 1, 3, -1, 1, Q("5.4375 in")))
sketch6.addConstraint(Sketcher.Constraint("DistanceY", 2, 2, 2, 1, Q("42.898584 mm")))
sketch6.setExpression("Constraints[12]", "Params.sketch6_radius")
sketch6.setExpression("Constraints[13]", "Params.sketch6_width")
sketch6.setExpression("Constraints[14]", "Params.sketch6_radius2")
pad4 = body.newObject("PartDesign::Pad", "Pad003")
pad4.Profile = sketch6
pad4.setExpression("Length", "Params.pad4_length")

sketch7 = body.newObject("Sketcher::SketchObject", "Sketch006")
sketch7.AttachmentSupport = (doc.getObject("XZ_Plane"), [""])
sketch7.MapMode = "FlatFace"
sketch7.AttachmentOffset = App.Placement(V(0, 0, 0.875 * 25.4), App.Rotation())
sketch7.addGeometry(Part.LineSegment(V(-128.6, 6.3, 0), V(-96.8, 6.3, 0)), False)
sketch7.addGeometry(Part.LineSegment(V(-96.8, 6.3, 0), V(-96.8, 38.1, 0)), False)
sketch7.addGeometry(Part.LineSegment(V(-96.8, 38.1, 0), V(-134.9, 38.1, 0)), False)
sketch7.addGeometry(Part.LineSegment(V(-134.9, 38.1, 0), V(-134.9, 46.1, 0)), False)
sketch7.addGeometry(Part.LineSegment(V(-134.9, 46.1, 0), V(-96.8, 46.1, 0)), False)
sketch7.addGeometry(Part.LineSegment(V(-96.8, 46.1, 0), V(-96.8, 52.4, 0)), False)
sketch7.addGeometry(Part.LineSegment(V(-96.8, 52.4, 0), V(-134.9, 52.4, 0)), False)
sketch7.addGeometry(Part.LineSegment(V(-134.9, 52.4, 0), V(-134.9, 58.8, 0)), False)
sketch7.addGeometry(Part.LineSegment(V(-134.9, 58.8, 0), V(-96.8, 58.8, 0)), False)
sketch7.addGeometry(Part.LineSegment(V(-96.8, 58.8, 0), V(-96.8, 61.9, 0)), False)
sketch7.addGeometry(Part.ArcOfCircle(Part.Circle(V(-100, 61.9, 0), V(0, 0, 1), 3.2), math.radians(0), math.radians(90)), False)
sketch7.addGeometry(Part.LineSegment(V(-100, 65.1, 0), V(-138.1, 65.1, 0)), False)
sketch7.addGeometry(Part.ArcOfCircle(Part.Circle(V(-138.1, 61.9, 0), V(0, 0, 1), 3.2), math.radians(90), math.radians(180)), False)
sketch7.addGeometry(Part.LineSegment(V(-141.3, 61.9, 0), V(-141.3, 19.1, 0)), False)
sketch7.addGeometry(Part.ArcOfCircle(Part.Circle(V(-128.6, 19.1, 0), V(0, 0, 1), 12.7), math.radians(180), math.radians(270)), False)
sketch7.addGeometry(Part.LineSegment(V(-103.2, 12.7, 0), V(-128.6, 12.7, 0)), False)
sketch7.addGeometry(Part.ArcOfCircle(Part.Circle(V(-128.6, 19.1, 0), V(0, 0, 1), 6.3), math.radians(180), math.radians(270)), False)
sketch7.addGeometry(Part.LineSegment(V(-134.9, 19.1, 0), V(-134.9, 31.8, 0)), False)
sketch7.addGeometry(Part.LineSegment(V(-134.9, 31.8, 0), V(-103.2, 31.8, 0)), False)
sketch7.addGeometry(Part.LineSegment(V(-103.2, 31.8, 0), V(-103.2, 12.7, 0)), False)
sketch7.addConstraint(Sketcher.Constraint("Coincident", 0, 2, 1, 1))
sketch7.addConstraint(Sketcher.Constraint("Coincident", 1, 2, 2, 1))
sketch7.addConstraint(Sketcher.Constraint("Coincident", 2, 2, 3, 1))
sketch7.addConstraint(Sketcher.Constraint("Coincident", 3, 2, 4, 1))
sketch7.addConstraint(Sketcher.Constraint("Coincident", 4, 2, 5, 1))
sketch7.addConstraint(Sketcher.Constraint("Coincident", 5, 2, 6, 1))
sketch7.addConstraint(Sketcher.Constraint("Coincident", 6, 2, 7, 1))
sketch7.addConstraint(Sketcher.Constraint("Coincident", 7, 2, 8, 1))
sketch7.addConstraint(Sketcher.Constraint("Coincident", 8, 2, 9, 1))
sketch7.addConstraint(Sketcher.Constraint("Tangent", 9, 2, 10, 1))
sketch7.addConstraint(Sketcher.Constraint("Tangent", 10, 2, 11, 1))
sketch7.addConstraint(Sketcher.Constraint("Tangent", 11, 2, 12, 1))
sketch7.addConstraint(Sketcher.Constraint("Tangent", 12, 2, 13, 1))
sketch7.addConstraint(Sketcher.Constraint("Tangent", 13, 2, 14, 1))
sketch7.addConstraint(Sketcher.Constraint("Tangent", 14, 2, 0, 1))
sketch7.addConstraint(Sketcher.Constraint("Tangent", 15, 2, 16, 2))
sketch7.addConstraint(Sketcher.Constraint("Tangent", 16, 1, 17, 1))
sketch7.addConstraint(Sketcher.Constraint("Coincident", 17, 2, 18, 1))
sketch7.addConstraint(Sketcher.Constraint("Coincident", 18, 2, 19, 1))
sketch7.addConstraint(Sketcher.Constraint("Coincident", 19, 2, 15, 1))
sketch7.addConstraint(Sketcher.Constraint("Horizontal", 0))
sketch7.addConstraint(Sketcher.Constraint("Vertical", 1))
sketch7.addConstraint(Sketcher.Constraint("Horizontal", 2))
sketch7.addConstraint(Sketcher.Constraint("Vertical", 3))
sketch7.addConstraint(Sketcher.Constraint("Horizontal", 4))
sketch7.addConstraint(Sketcher.Constraint("Vertical", 5))
sketch7.addConstraint(Sketcher.Constraint("Horizontal", 6))
sketch7.addConstraint(Sketcher.Constraint("Vertical", 7))
sketch7.addConstraint(Sketcher.Constraint("Horizontal", 8))
sketch7.addConstraint(Sketcher.Constraint("Vertical", 9))
sketch7.addConstraint(Sketcher.Constraint("Horizontal", 11))
sketch7.addConstraint(Sketcher.Constraint("Vertical", 13))
sketch7.addConstraint(Sketcher.Constraint("Horizontal", 15))
sketch7.addConstraint(Sketcher.Constraint("Vertical", 17))
sketch7.addConstraint(Sketcher.Constraint("Horizontal", 18))
sketch7.addConstraint(Sketcher.Constraint("Vertical", 19))
sketch7.addConstraint(Sketcher.Constraint("Coincident", 16, 3, 14, 3))
sketch7.addConstraint(Sketcher.Constraint("Equal", 10, 12))
sketch7.addConstraint(Sketcher.Constraint("Vertical", 1, 2, 4, 2))
sketch7.addConstraint(Sketcher.Constraint("Vertical", 3, 2, 6, 2))
sketch7.addConstraint(Sketcher.Constraint("Vertical", 5, 2, 8, 2))
sketch7.addConstraint(Sketcher.Constraint("Vertical", 7, 2, 16, 1))
sketch7.addConstraint(Sketcher.Constraint("Equal", 8, 11))
sketch7.addConstraint(Sketcher.Constraint("Equal", 0, 18))
sketch7.addConstraint(Sketcher.Constraint("Equal", 18, 1))
sketch7.addConstraint(Sketcher.Constraint("Equal", 5, 7))
sketch7.addConstraint(Sketcher.Constraint("Radius", 14, Q("0.5 in")))
sketch7.addConstraint(Sketcher.Constraint("DistanceX", 15, 2, 15, 1, Q("1 in")))
sketch7.addConstraint(Sketcher.Constraint("Radius", 16, Q("0.25 in")))
sketch7.addConstraint(Sketcher.Constraint("DistanceY", 17, 1, 17, 2, Q("0.5 in")))
sketch7.addConstraint(Sketcher.Constraint("DistanceY", 5, 1, 5, 2, Q("0.25 in")))
sketch7.addConstraint(Sketcher.Constraint("DistanceY", -1, 1, 1, 2, Q("1.5 in")))
sketch7.addConstraint(Sketcher.Constraint("DistanceY", 5, 2, 10, 2, Q("0.5 in")))
sketch7.addConstraint(Sketcher.Constraint("DistanceX", 10, 3, -1, 1, Q("3.9375 in")))
sketch7.addConstraint(Sketcher.Constraint("DistanceY", 3, 1, 3, 2, Q("7.973584 mm")))
sketch7.setExpression("Constraints[46]", "Params.sketch7_radius")
sketch7.setExpression("Constraints[47]", "Params.sketch7_width")
sketch7.setExpression("Constraints[48]", "Params.sketch7_radius2")
sketch7.setExpression("Constraints[49]", "Params.sketch7_height")
sketch7.setExpression("Constraints[50]", "Params.sketch7_height2")
pad5 = body.newObject("PartDesign::Pad", "Pad004")
pad5.Profile = sketch7
pad5.setExpression("Length", "Params.pad5_length")

sketch8 = body.newObject("Sketcher::SketchObject", "Sketch007")
sketch8.AttachmentSupport = (doc.getObject("XY_Plane"), [""])
sketch8.MapMode = "FlatFace"
sketch8.AttachmentOffset = App.Placement(V(0, 0, 65.123584), App.Rotation())
sketch8.addGeometry(Part.LineSegment(V(-97, -22, 0), V(-135, -44, 0)), False)
sketch8.addGeometry(Part.LineSegment(V(-135, -44, 0), V(-97, -44, 0)), False)
sketch8.addGeometry(Part.LineSegment(V(-97, -44, 0), V(-97, -22, 0)), False)
sketch8.addConstraint(Sketcher.Constraint("Coincident", 0, 2, 1, 1))
sketch8.addConstraint(Sketcher.Constraint("Coincident", 1, 2, 2, 1))
sketch8.addConstraint(Sketcher.Constraint("Coincident", 2, 2, 0, 1))
sketch8.addConstraint(Sketcher.Constraint("Horizontal", 1))
sketch8.addConstraint(Sketcher.Constraint("Vertical", 2))
sketch8.addConstraint(Sketcher.Constraint("DistanceX", 1, 1, 1, 2, Q("1.5 in")))
sketch8.addConstraint(Sketcher.Constraint("DistanceY", 2, 1, 2, 2, Q("0.875 in")))
sketch8.addConstraint(Sketcher.Constraint("DistanceY", 0, 2, -1, 1, Q("1.75 in")))
sketch8.addConstraint(Sketcher.Constraint("DistanceX", 0, 2, -1, 1, Q("5.3125 in")))
sketch8.setExpression("Constraints[5]", "Params.sketch8_width")
sketch8.setExpression("Constraints[6]", "Params.sketch8_height")
pocket3 = body.newObject("PartDesign::Pocket", "Pocket002")
pocket3.Profile = sketch8
pocket3.setExpression("Length", "Params.pocket3_length")

sketch9 = body.newObject("Sketcher::SketchObject", "Sketch008")
sketch9.Placement = App.Placement(V(-0.256513, 0.439736, -0.384769), App.Rotation(V(0.915651215, 0.302516036, -0.264701531), V(0, -0.658504607, -0.752576695), V(-0.401973696, 0.689097765, -0.602960544), "ZXY"))
sketch9.addGeometry(Part.LineSegment(V(-105, -14, 0), V(-105, 20, 0)), False)
sketch9.addGeometry(Part.LineSegment(V(-105, 20, 0), V(-147, 1, 0)), False)
sketch9.addGeometry(Part.LineSegment(V(-147, 1, 0), V(-105, -14, 0)), False)
sketch9.addConstraint(Sketcher.Constraint("Coincident", 0, 2, 1, 1))
sketch9.addConstraint(Sketcher.Constraint("Coincident", 1, 2, 2, 1))
sketch9.addConstraint(Sketcher.Constraint("Coincident", 2, 2, 0, 1))
sketch9.addConstraint(Sketcher.Constraint("Vertical", 0))
sketch9.addConstraint(Sketcher.Constraint("Distance", 1, Q("45.790501 mm")))
sketch9.addConstraint(Sketcher.Constraint("Distance", 2, Q("44.10851 mm")))
sketch9.addConstraint(Sketcher.Constraint("DistanceY", 0, 1, 0, 2, Q("33.750713 mm")))
sketch9.addConstraint(Sketcher.Constraint("DistanceX", 0, 2, -1, 1, Q("105.477922 mm")))
sketch9.addConstraint(Sketcher.Constraint("DistanceY", -1, 1, 0, 2, Q("19.712806 mm")))
pocket4 = body.newObject("PartDesign::Pocket", "Pocket003")
pocket4.Profile = sketch9
pocket4.setExpression("Length", "Params.pocket4_length")

sketch10 = body.newObject("Sketcher::SketchObject", "Sketch009")
sketch10.AttachmentSupport = (doc.getObject("YZ_Plane"), [""])
sketch10.MapMode = "FlatFace"
sketch10.AttachmentOffset = App.Placement(V(0, 0, -4.0625 * 25.4), App.Rotation())
sketch10.addGeometry(Part.LineSegment(V(-31.5, 31.8, 0), V(-44.5, 12.7, 0)), False)
sketch10.addGeometry(Part.LineSegment(V(-44.5, 12.7, 0), V(-44.5, 16.9, 0)), False)
sketch10.addGeometry(Part.LineSegment(V(-44.5, 16.9, 0), V(-31.5, 31.8, 0)), False)
sketch10.addConstraint(Sketcher.Constraint("Coincident", 0, 2, 1, 1))
sketch10.addConstraint(Sketcher.Constraint("Coincident", 1, 2, 2, 1))
sketch10.addConstraint(Sketcher.Constraint("Coincident", 2, 2, 0, 1))
sketch10.addConstraint(Sketcher.Constraint("Vertical", 1))
sketch10.addConstraint(Sketcher.Constraint("DistanceY", -1, 1, 0, 2, Q("0.5 in")))
sketch10.addConstraint(Sketcher.Constraint("DistanceX", 0, 2, -1, 1, Q("1.75 in")))
sketch10.addConstraint(Sketcher.Constraint("DistanceY", -1, 1, 2, 2, Q("1.25 in")))
sketch10.addConstraint(Sketcher.Constraint("DistanceY", 1, 1, 1, 2, Q("4.233333 mm")))
sketch10.addConstraint(Sketcher.Constraint("Distance", 0, Q("23.043067 mm")))
pocket5 = body.newObject("PartDesign::Pocket", "Pocket004")
pocket5.Profile = sketch10
pocket5.setExpression("Length", "Params.pocket5_length")
pocket5.Reversed = True

sketch11 = body.newObject("Sketcher::SketchObject", "Sketch010")
sketch11.AttachmentSupport = (doc.getObject("XY_Plane"), [""])
sketch11.MapMode = "FlatFace"
sketch11.AttachmentOffset = App.Placement(V(0, 0, 1.25 * 25.4), App.Rotation())
sketch11.addGeometry(Part.LineSegment(V(-135, -44, 0), V(-103, -31, 0)), False)
sketch11.addGeometry(Part.LineSegment(V(-103, -31, 0), V(-125, -44, 0)), False)
sketch11.addGeometry(Part.LineSegment(V(-125, -44, 0), V(-135, -44, 0)), False)
sketch11.addConstraint(Sketcher.Constraint("Coincident", 0, 2, 1, 1))
sketch11.addConstraint(Sketcher.Constraint("Coincident", 1, 2, 2, 1))
sketch11.addConstraint(Sketcher.Constraint("Coincident", 2, 2, 0, 1))
sketch11.addConstraint(Sketcher.Constraint("Horizontal", 2))
sketch11.addConstraint(Sketcher.Constraint("DistanceX", 2, 2, 2, 1, Q("0.375 in")))
sketch11.addConstraint(Sketcher.Constraint("DistanceY", 1, 2, -1, 1, Q("1.75 in")))
sketch11.addConstraint(Sketcher.Constraint("DistanceX", 2, 2, 0, 2, Q("1.25 in")))
sketch11.addConstraint(Sketcher.Constraint("DistanceX", 0, 2, -1, 1, Q("4.0625 in")))
sketch11.addConstraint(Sketcher.Constraint("Distance", 0, Q("34.29494 mm")))
sketch11.setExpression("Constraints[4]", "Params.sketch11_width")
pocket6 = body.newObject("PartDesign::Pocket", "Pocket005")
pocket6.Profile = sketch11
pocket6.setExpression("Length", "Params.pocket6_length")
pocket6.Reversed = True

doc.recompute()
